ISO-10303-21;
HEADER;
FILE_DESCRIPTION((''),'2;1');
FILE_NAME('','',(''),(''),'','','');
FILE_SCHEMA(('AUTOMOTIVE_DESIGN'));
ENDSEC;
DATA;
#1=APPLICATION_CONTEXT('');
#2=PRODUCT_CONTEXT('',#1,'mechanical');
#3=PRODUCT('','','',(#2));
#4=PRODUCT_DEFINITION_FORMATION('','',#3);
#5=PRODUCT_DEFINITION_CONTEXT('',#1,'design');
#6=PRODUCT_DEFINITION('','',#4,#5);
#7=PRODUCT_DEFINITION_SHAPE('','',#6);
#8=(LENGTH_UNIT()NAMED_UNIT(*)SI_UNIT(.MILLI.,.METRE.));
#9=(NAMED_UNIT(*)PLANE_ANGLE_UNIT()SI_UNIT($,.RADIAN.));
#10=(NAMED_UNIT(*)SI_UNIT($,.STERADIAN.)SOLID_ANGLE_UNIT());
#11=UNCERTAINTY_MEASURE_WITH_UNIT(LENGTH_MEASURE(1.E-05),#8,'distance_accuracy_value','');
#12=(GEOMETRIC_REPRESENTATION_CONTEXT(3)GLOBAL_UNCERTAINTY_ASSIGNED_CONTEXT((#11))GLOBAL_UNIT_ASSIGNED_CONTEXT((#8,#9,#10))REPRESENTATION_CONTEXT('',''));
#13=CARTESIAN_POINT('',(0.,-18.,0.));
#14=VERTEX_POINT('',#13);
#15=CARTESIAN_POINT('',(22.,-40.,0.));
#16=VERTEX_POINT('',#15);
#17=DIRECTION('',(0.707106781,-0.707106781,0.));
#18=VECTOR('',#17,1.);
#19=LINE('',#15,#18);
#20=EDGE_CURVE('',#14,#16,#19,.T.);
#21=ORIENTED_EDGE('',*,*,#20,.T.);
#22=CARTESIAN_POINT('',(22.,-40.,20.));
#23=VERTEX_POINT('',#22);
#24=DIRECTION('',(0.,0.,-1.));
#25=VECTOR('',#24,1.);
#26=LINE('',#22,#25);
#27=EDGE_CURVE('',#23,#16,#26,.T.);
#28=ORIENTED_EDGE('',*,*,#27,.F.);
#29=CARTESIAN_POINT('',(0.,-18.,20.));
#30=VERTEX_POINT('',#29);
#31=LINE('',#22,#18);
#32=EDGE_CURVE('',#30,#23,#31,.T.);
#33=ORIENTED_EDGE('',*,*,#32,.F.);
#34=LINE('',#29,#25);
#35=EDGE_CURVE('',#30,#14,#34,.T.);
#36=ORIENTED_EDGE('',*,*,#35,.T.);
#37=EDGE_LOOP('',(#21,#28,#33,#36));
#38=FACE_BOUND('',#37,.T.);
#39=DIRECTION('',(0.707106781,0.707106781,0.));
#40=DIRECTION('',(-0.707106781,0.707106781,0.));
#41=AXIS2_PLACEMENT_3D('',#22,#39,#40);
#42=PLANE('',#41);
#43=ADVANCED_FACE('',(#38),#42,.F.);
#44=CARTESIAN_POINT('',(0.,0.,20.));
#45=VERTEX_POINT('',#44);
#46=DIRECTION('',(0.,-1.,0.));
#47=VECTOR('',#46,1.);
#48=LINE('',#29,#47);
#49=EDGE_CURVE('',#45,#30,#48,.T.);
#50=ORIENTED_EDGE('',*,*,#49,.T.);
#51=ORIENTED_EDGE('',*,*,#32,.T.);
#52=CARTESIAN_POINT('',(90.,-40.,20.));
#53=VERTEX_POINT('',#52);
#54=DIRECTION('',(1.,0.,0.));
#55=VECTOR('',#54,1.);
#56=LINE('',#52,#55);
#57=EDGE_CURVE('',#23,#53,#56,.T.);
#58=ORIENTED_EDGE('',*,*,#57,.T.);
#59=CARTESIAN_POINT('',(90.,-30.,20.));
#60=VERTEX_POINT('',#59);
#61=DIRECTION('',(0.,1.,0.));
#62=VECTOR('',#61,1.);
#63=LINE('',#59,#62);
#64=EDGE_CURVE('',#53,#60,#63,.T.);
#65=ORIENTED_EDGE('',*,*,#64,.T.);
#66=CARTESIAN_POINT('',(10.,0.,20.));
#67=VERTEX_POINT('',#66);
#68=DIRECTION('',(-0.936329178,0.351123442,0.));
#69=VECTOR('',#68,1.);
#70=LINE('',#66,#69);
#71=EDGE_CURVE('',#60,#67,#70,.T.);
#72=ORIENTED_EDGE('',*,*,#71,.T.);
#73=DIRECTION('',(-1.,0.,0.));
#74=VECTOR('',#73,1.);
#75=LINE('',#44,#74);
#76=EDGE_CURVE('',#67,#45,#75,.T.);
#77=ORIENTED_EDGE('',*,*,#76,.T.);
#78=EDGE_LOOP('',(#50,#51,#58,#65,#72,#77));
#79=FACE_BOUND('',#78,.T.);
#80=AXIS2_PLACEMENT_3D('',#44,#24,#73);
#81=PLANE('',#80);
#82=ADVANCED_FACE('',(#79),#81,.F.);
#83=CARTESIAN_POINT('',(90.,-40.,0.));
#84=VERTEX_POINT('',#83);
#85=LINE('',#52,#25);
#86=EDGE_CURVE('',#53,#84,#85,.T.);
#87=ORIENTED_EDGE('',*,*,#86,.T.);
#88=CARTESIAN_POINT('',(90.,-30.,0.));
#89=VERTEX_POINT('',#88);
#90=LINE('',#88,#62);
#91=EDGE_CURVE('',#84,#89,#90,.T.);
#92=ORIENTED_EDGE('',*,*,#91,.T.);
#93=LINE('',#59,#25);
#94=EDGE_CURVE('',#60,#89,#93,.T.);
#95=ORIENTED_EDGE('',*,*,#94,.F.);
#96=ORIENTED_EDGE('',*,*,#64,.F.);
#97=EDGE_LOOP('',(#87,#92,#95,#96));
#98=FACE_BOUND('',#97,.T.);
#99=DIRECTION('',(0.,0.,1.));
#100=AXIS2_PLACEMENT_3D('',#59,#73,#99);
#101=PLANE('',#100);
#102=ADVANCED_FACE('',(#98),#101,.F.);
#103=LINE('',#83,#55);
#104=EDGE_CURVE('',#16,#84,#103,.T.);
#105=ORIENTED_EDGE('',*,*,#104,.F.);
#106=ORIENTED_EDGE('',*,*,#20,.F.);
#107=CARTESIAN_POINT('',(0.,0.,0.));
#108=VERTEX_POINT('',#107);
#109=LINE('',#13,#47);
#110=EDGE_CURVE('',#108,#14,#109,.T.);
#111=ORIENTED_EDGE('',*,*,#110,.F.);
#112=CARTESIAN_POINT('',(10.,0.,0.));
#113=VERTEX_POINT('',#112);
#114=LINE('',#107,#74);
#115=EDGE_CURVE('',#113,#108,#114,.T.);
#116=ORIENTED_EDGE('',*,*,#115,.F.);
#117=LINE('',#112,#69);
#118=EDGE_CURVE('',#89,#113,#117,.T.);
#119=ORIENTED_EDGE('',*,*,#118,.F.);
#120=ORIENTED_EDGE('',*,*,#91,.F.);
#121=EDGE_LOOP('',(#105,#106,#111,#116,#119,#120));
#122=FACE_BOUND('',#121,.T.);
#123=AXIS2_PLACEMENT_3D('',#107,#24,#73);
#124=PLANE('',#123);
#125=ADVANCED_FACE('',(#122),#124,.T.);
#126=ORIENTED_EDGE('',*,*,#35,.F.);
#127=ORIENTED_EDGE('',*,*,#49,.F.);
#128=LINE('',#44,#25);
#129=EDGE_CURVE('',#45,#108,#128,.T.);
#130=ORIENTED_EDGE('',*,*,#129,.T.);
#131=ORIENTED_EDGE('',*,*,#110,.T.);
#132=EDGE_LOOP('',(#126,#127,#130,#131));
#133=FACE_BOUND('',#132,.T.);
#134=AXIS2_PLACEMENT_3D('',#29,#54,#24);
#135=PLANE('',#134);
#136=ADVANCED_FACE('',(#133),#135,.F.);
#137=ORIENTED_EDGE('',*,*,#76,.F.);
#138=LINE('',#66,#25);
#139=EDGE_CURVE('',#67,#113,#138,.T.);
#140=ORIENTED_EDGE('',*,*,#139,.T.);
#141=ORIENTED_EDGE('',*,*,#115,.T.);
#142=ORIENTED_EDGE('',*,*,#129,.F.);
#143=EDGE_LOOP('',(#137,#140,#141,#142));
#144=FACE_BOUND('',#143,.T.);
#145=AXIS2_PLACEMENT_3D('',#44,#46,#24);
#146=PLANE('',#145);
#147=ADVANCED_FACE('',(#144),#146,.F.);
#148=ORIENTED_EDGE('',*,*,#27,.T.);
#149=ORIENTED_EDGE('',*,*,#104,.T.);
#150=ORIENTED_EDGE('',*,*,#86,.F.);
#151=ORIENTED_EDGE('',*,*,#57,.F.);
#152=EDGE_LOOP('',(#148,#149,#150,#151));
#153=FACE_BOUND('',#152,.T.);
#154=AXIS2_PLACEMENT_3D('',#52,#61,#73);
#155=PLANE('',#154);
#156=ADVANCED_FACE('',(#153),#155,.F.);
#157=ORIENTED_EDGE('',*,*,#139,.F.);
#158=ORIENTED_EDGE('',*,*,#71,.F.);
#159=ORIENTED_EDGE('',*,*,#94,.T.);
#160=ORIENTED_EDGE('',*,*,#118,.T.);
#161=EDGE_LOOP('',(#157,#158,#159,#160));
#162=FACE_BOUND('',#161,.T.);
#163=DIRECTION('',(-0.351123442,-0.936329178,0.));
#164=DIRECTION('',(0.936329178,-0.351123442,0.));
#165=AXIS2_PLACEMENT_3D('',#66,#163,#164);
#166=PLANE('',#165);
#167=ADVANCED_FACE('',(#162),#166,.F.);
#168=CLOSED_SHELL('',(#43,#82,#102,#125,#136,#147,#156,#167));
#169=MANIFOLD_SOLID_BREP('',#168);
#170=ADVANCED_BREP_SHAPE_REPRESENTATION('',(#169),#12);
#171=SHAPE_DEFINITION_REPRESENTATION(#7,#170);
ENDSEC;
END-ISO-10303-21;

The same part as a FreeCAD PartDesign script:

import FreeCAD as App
import Part
import Sketcher
Q = App.Units.Quantity

doc = App.newDocument("Part")
params = doc.addObject("Spreadsheet::Sheet", "Params")
for row, (alias, value) in enumerate([
    ("sketch1_width", "10 mm"),
    ("sketch1_width2", "68 mm"),
    ("sketch1_height", "18 mm"),
    ("pad1_length", "20 mm"),
], start=1):
    params.set(f"A{row}", alias)
    params.set(f"B{row}", "=" + value)
    params.setAlias(f"B{row}", alias)

body = doc.addObject("PartDesign::Body", "Body")

sketch1 = doc.addObject("Sketcher::SketchObject", "Sketch")
body.addObject(sketch1)
sketch1.AttachmentSupport = (doc.XY_Plane, [""])
sketch1.MapMode = "FlatFace"
sketch1.addGeometry(Part.LineSegment(App.Vector(10, 0, 0), App.Vector(0, 0, 0)), False)
sketch1.addGeometry(Part.LineSegment(App.Vector(0, 0, 0), App.Vector(0, -18, 0)), False)
sketch1.addGeometry(Part.LineSegment(App.Vector(0, -18, 0), App.Vector(22, -40, 0)), False)
sketch1.addGeometry(Part.LineSegment(App.Vector(22, -40, 0), App.Vector(90, -40, 0)), False)
sketch1.addGeometry(Part.LineSegment(App.Vector(90, -40, 0), App.Vector(90, -30, 0)), False)
sketch1.addGeometry(Part.LineSegment(App.Vector(90, -30, 0), App.Vector(10, 0, 0)), False)
sketch1.addConstraint(Sketcher.Constraint("Coincident", 0, 2, 1, 1))
sketch1.addConstraint(Sketcher.Constraint("Coincident", 1, 2, 2, 1))
sketch1.addConstraint(Sketcher.Constraint("Coincident", 2, 2, 3, 1))
sketch1.addConstraint(Sketcher.Constraint("Coincident", 3, 2, 4, 1))
sketch1.addConstraint(Sketcher.Constraint("Coincident", 4, 2, 5, 1))
sketch1.addConstraint(Sketcher.Constraint("Coincident", 5, 2, 0, 1))
sketch1.addConstraint(Sketcher.Constraint("Horizontal", 0))
sketch1.addConstraint(Sketcher.Constraint("Vertical", 1))
sketch1.addConstraint(Sketcher.Constraint("Horizontal", 3))
sketch1.addConstraint(Sketcher.Constraint("Vertical", 4))
sketch1.addConstraint(Sketcher.Constraint("Coincident", 0, 2, -1, 1))
sketch1.addConstraint(Sketcher.Constraint("Equal", 0, 4))
sketch1.addConstraint(Sketcher.Constraint("DistanceX", 0, 2, 0, 1, 10.0))
sketch1.addConstraint(Sketcher.Constraint("DistanceX", 3, 1, 3, 2, 68.0))
sketch1.addConstraint(Sketcher.Constraint("DistanceY", 1, 2, 1, 1, 18.0))
sketch1.addConstraint(Sketcher.Constraint("Angle", 2, Q("-45 deg")))
sketch1.addConstraint(Sketcher.Constraint("DistanceX", -1, 1, 2, 2, 22.0))
sketch1.setExpression("Constraints[12]", "Params.sketch1_width")
sketch1.setExpression("Constraints[13]", "Params.sketch1_width2")
sketch1.setExpression("Constraints[14]", "Params.sketch1_height")
pad1 = doc.addObject("PartDesign::Pad", "Pad")
body.addObject(pad1)
pad1.Profile = sketch1
pad1.setExpression("Length", "Params.pad1_length")

doc.recompute()
